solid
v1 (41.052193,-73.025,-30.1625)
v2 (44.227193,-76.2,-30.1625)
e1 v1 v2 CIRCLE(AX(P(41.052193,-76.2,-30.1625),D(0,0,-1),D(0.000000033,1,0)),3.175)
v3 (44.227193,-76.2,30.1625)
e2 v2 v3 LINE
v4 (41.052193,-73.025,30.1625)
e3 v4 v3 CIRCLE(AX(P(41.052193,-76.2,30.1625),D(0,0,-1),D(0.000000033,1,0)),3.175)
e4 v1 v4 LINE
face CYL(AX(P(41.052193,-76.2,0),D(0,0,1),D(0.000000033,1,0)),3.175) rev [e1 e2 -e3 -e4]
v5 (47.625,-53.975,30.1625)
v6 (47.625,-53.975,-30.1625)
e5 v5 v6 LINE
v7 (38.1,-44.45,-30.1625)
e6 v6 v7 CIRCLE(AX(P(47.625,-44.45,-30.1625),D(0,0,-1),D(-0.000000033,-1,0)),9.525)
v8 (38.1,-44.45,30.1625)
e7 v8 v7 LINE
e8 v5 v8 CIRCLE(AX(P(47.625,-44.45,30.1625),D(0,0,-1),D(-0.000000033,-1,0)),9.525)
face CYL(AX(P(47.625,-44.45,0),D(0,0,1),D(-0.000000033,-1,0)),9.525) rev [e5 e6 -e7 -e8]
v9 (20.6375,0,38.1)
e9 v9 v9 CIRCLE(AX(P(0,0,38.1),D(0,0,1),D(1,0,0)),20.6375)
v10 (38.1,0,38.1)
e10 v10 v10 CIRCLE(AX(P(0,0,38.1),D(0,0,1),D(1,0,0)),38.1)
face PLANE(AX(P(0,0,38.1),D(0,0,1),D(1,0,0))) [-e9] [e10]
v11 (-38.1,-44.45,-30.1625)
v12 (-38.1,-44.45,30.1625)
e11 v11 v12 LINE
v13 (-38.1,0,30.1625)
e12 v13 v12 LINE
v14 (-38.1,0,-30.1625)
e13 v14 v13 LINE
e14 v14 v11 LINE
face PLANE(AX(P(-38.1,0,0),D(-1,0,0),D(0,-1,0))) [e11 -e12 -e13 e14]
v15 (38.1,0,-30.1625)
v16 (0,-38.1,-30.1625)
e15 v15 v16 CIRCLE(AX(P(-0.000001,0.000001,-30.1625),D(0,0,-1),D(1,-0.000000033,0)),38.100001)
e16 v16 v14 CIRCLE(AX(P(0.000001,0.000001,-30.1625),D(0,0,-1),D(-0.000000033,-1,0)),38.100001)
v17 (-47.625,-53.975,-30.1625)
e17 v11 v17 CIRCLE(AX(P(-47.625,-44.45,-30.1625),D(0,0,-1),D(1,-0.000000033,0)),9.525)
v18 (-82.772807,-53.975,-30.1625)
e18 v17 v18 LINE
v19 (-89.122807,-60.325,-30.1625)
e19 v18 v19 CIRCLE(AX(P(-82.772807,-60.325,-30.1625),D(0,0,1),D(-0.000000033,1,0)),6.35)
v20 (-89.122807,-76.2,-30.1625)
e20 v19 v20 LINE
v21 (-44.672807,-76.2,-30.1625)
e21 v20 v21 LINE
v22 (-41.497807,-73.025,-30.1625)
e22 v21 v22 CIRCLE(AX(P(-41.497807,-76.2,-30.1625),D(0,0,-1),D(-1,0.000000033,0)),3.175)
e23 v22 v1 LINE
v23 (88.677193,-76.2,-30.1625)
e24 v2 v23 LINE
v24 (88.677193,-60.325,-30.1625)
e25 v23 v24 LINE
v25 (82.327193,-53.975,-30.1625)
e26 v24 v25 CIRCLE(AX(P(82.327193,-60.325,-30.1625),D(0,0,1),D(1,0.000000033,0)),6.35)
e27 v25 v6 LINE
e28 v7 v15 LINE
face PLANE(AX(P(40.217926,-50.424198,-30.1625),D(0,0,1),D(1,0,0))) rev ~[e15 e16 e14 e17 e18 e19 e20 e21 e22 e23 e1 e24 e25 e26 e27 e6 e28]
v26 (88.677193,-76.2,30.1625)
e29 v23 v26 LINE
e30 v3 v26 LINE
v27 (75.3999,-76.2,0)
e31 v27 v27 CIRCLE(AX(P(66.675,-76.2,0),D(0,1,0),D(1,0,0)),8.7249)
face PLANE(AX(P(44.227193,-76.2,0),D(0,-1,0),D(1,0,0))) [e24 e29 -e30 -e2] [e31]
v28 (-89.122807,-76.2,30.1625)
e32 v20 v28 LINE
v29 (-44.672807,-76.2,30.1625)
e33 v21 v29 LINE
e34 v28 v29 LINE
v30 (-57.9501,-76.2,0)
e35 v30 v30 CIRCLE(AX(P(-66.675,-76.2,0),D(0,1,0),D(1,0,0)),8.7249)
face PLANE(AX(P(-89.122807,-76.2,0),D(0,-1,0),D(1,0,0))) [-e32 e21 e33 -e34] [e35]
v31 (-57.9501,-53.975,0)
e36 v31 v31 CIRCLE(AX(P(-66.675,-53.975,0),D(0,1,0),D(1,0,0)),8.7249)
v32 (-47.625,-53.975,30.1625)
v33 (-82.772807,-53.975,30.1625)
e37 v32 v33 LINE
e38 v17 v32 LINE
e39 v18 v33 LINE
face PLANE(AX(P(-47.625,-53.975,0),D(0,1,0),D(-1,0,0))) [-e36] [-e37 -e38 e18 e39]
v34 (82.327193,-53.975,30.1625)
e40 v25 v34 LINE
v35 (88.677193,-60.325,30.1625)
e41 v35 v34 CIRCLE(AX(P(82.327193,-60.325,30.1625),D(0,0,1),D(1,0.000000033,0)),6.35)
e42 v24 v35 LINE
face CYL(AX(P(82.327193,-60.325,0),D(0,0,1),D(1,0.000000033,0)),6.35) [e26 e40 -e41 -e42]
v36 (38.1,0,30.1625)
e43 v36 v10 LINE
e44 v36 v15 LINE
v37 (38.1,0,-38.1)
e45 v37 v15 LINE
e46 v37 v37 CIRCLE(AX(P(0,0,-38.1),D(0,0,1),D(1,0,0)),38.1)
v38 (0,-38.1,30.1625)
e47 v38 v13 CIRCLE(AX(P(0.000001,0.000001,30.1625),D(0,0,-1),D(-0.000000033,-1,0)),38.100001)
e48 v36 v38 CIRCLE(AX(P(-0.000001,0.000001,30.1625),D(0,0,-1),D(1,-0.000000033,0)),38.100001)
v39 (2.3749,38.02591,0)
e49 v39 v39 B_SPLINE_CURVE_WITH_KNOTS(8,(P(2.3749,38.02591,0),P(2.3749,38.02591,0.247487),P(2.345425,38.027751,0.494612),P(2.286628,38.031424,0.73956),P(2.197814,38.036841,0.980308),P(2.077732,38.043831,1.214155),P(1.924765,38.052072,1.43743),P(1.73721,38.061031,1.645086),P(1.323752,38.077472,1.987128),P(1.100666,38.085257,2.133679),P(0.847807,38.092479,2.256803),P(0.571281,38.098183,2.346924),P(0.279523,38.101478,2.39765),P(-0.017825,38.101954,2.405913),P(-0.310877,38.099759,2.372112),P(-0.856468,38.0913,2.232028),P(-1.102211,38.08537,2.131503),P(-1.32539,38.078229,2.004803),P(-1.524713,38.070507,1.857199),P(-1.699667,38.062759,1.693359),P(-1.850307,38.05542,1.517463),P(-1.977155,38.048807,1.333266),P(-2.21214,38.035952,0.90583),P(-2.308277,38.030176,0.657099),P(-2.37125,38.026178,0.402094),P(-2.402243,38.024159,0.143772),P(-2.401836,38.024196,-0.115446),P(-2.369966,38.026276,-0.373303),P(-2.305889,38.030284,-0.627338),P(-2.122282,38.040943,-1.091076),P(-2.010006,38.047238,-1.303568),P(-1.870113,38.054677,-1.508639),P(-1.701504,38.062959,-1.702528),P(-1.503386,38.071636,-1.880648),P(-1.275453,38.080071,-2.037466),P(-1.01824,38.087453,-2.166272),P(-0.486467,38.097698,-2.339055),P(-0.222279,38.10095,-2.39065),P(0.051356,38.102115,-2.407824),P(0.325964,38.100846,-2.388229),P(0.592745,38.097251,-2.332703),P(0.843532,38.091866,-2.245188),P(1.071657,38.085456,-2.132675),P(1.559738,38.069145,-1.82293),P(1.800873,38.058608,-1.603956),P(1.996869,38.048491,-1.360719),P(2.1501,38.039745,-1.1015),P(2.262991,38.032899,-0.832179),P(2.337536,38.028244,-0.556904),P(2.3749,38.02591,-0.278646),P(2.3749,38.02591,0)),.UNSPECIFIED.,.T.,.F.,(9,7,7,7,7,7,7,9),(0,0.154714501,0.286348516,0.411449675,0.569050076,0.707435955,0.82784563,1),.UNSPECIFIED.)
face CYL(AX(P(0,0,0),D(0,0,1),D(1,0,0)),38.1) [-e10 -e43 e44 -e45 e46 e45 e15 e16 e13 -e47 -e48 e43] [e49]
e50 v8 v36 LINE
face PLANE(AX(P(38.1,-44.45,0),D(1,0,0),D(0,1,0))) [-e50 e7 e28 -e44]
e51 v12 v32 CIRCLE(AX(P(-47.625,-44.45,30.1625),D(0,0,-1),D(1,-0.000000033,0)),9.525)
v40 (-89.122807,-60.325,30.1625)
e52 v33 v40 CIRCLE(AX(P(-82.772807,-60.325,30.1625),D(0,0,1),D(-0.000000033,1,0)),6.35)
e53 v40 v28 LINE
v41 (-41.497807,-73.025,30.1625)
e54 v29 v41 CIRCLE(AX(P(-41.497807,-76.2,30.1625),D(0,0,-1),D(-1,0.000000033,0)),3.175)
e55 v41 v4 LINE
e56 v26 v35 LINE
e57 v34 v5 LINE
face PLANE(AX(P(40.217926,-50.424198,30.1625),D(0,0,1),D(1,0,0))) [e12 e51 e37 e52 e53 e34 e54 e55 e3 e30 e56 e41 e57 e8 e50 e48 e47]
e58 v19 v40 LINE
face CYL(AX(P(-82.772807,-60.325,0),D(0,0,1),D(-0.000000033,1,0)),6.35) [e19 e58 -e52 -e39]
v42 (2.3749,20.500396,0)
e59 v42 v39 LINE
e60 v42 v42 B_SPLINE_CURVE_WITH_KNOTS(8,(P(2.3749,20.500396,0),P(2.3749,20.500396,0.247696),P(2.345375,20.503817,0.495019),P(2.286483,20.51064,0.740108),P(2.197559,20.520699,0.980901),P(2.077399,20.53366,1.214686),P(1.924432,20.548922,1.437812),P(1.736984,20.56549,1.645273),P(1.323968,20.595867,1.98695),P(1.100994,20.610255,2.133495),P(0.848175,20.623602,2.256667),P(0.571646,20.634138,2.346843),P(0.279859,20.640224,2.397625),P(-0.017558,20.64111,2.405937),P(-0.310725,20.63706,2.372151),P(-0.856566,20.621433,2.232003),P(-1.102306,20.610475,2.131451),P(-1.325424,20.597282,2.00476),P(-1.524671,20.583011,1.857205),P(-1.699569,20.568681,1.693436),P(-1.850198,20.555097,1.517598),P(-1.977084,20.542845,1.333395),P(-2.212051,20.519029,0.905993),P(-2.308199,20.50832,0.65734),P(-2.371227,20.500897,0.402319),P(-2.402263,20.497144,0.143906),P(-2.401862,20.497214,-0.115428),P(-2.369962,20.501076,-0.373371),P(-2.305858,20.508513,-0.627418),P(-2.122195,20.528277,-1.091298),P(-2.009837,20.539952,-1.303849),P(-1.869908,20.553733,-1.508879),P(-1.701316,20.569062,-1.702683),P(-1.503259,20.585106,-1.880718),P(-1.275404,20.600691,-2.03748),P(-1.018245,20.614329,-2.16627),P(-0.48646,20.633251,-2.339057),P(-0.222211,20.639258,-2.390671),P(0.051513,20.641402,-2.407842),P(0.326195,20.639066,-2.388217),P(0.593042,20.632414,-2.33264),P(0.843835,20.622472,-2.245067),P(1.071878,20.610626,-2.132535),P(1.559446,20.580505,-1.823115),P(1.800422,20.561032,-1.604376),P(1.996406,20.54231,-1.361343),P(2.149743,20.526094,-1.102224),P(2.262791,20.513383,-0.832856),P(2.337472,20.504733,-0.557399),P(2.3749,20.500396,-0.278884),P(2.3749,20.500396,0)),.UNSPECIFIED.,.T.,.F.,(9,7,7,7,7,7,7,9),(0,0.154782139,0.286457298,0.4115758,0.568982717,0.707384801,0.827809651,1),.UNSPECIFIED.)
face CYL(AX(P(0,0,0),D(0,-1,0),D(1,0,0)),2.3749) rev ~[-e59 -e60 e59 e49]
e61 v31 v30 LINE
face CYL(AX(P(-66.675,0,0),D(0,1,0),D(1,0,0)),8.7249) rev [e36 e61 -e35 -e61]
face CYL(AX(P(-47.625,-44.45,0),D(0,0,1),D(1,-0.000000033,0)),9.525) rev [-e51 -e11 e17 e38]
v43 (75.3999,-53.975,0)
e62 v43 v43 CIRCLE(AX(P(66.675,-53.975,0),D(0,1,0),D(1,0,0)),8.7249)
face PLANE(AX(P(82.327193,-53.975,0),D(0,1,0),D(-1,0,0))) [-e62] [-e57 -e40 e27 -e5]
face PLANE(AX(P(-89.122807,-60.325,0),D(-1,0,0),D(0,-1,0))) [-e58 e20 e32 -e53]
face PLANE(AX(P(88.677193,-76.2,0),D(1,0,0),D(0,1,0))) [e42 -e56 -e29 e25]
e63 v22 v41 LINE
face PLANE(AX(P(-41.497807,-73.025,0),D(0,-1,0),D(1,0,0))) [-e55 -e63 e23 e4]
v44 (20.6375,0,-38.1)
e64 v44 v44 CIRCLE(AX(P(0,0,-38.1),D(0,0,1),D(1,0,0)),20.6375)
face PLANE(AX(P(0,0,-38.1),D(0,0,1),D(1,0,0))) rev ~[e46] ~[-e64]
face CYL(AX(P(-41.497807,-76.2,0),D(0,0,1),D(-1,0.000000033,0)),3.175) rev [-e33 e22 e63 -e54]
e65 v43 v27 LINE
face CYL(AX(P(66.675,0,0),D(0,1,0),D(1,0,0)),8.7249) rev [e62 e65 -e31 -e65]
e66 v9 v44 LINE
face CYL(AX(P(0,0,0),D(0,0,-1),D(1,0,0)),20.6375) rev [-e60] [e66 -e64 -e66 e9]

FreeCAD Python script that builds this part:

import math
import FreeCAD as App
import Part
import Sketcher
Q = App.Units.Quantity

doc = App.newDocument("Part")
body = doc.addObject("PartDesign::Body", "Body")

sketch1 = body.newObject("Sketcher::SketchObject", "Sketch")
sketch1.AttachmentSupport = (doc.getObject("XY_Plane"), [""])
sketch1.MapMode = "FlatFace"
sketch1.addGeometry(Part.Circle(App.Vector(0, 0, 0), App.Vector(0, 0, 1), 38), False)
sketch1.addGeometry(Part.Circle(App.Vector(0, 0, 0), App.Vector(0, 0, 1), 21), False)
sketch1.addConstraint(Sketcher.Constraint("Coincident", 0, 3, -1, 1))
sketch1.addConstraint(Sketcher.Constraint("Coincident", 1, 3, -1, 1))
sketch1.addConstraint(Sketcher.Constraint("Diameter", 0, Q("3 in")))
sketch1.addConstraint(Sketcher.Constraint("Diameter", 1, Q("1.625 in")))
pad1 = body.newObject("PartDesign::Pad", "Pad")
pad1.Profile = sketch1
pad1.Length = Q("3 in")
pad1.Midplane = True

sketch2 = body.newObject("Sketcher::SketchObject", "Sketch001")
sketch2.AttachmentSupport = (doc.getObject("XY_Plane"), [""])
sketch2.MapMode = "FlatFace"
sketch2.addGeometry(Part.ArcOfCircle(Part.Circle(App.Vector(0, 0, 0), App.Vector(0, 0, 1), 38.1), math.radians(-90), math.radians(0)), False)
sketch2.addGeometry(Part.ArcOfCircle(Part.Circle(App.Vector(0, 0, 0), App.Vector(0, 0, 1), 38.1), math.radians(-180), math.radians(-90)), False)
sketch2.addGeometry(Part.LineSegment(App.Vector(-38.1, 0, 0), App.Vector(-38.1, -44.5, 0)), False)
sketch2.addGeometry(Part.ArcOfCircle(Part.Circle(App.Vector(-47.6, -44.4, 0), App.Vector(0, 0, 1), 9.5), math.radians(-90), math.radians(0)), False)
sketch2.addGeometry(Part.LineSegment(App.Vector(-47.6, -54, 0), App.Vector(-82.8, -54, 0)), False)
sketch2.addGeometry(Part.ArcOfCircle(Part.Circle(App.Vector(-82.8, -60.3, 0), App.Vector(0, 0, 1), 6.4), math.radians(90), math.radians(180)), False)
sketch2.addGeometry(Part.LineSegment(App.Vector(-89.1, -60.3, 0), App.Vector(-89.1, -76.2, 0)), False)
sketch2.addGeometry(Part.LineSegment(App.Vector(-89.1, -76.2, 0), App.Vector(-44.7, -76.2, 0)), False)
sketch2.addGeometry(Part.ArcOfCircle(Part.Circle(App.Vector(-41.5, -76.2, 0), App.Vector(0, 0, 1), 3.2), math.radians(90), math.radians(180)), False)
sketch2.addGeometry(Part.LineSegment(App.Vector(-41.5, -73, 0), App.Vector(41.1, -73, 0)), False)
sketch2.addGeometry(Part.ArcOfCircle(Part.Circle(App.Vector(41.1, -76.2, 0), App.Vector(0, 0, 1), 3.2), math.radians(0), math.radians(90)), False)
sketch2.addGeometry(Part.LineSegment(App.Vector(44.2, -76.2, 0), App.Vector(88.7, -76.2, 0)), False)
sketch2.addGeometry(Part.LineSegment(App.Vector(88.7, -76.2, 0), App.Vector(88.7, -60.3, 0)), False)
sketch2.addGeometry(Part.ArcOfCircle(Part.Circle(App.Vector(82.3, -60.3, 0), App.Vector(0, 0, 1), 6.4), math.radians(0), math.radians(90)), False)
sketch2.addGeometry(Part.LineSegment(App.Vector(82.3, -54, 0), App.Vector(47.6, -54, 0)), False)
sketch2.addGeometry(Part.ArcOfCircle(Part.Circle(App.Vector(47.6, -44.4, 0), App.Vector(0, 0, 1), 9.5), math.radians(-180), math.radians(-90)), False)
sketch2.addGeometry(Part.LineSegment(App.Vector(38.1, -44.5, 0), App.Vector(38.1, 0, 0)), False)
sketch2.addConstraint(Sketcher.Constraint("Tangent", 0, 1, 1, 2))
sketch2.addConstraint(Sketcher.Constraint("Tangent", 1, 1, 2, 1))
sketch2.addConstraint(Sketcher.Constraint("Tangent", 2, 2, 3, 2))
sketch2.addConstraint(Sketcher.Constraint("Tangent", 3, 1, 4, 1))
sketch2.addConstraint(Sketcher.Constraint("Tangent", 4, 2, 5, 1))
sketch2.addConstraint(Sketcher.Constraint("Tangent", 5, 2, 6, 1))
sketch2.addConstraint(Sketcher.Constraint("Coincident", 6, 2, 7, 1))
sketch2.addConstraint(Sketcher.Constraint("Coincident", 7, 2, 8, 2))
sketch2.addConstraint(Sketcher.Constraint("Tangent", 8, 1, 9, 1))
sketch2.addConstraint(Sketcher.Constraint("Tangent", 9, 2, 10, 2))
sketch2.addConstraint(Sketcher.Constraint("Coincident", 10, 1, 11, 1))
sketch2.addConstraint(Sketcher.Constraint("Coincident", 11, 2, 12, 1))
sketch2.addConstraint(Sketcher.Constraint("Tangent", 12, 2, 13, 1))
sketch2.addConstraint(Sketcher.Constraint("Tangent", 13, 2, 14, 1))
sketch2.addConstraint(Sketcher.Constraint("Tangent", 14, 2, 15, 2))
sketch2.addConstraint(Sketcher.Constraint("Tangent", 15, 1, 16, 1))
sketch2.addConstraint(Sketcher.Constraint("Tangent", 16, 2, 0, 2))
sketch2.addConstraint(Sketcher.Constraint("Vertical", 2))
sketch2.addConstraint(Sketcher.Constraint("Horizontal", 4))
sketch2.addConstraint(Sketcher.Constraint("Vertical", 6))
sketch2.addConstraint(Sketcher.Constraint("Horizontal", 7))
sketch2.addConstraint(Sketcher.Constraint("Horizontal", 9))
sketch2.addConstraint(Sketcher.Constraint("Horizontal", 11))
sketch2.addConstraint(Sketcher.Constraint("Vertical", 12))
sketch2.addConstraint(Sketcher.Constraint("Horizontal", 14))
sketch2.addConstraint(Sketcher.Constraint("Vertical", 16))
sketch2.addConstraint(Sketcher.Constraint("Coincident", 0, 3, -1, 1))
sketch2.addConstraint(Sketcher.Constraint("Equal", 0, 1))
sketch2.addConstraint(Sketcher.Constraint("Equal", 8, 10))
sketch2.addConstraint(Sketcher.Constraint("Equal", 5, 13))
sketch2.addConstraint(Sketcher.Constraint("Equal", 3, 15))
sketch2.addConstraint(Sketcher.Constraint("PointOnObject", 0, 1, -2))
sketch2.addConstraint(Sketcher.Constraint("Horizontal", 5, 3, 13, 3))
sketch2.addConstraint(Sketcher.Constraint("Horizontal", 10, 3, 6, 2))
sketch2.addConstraint(Sketcher.Constraint("Horizontal", 7, 2, 10, 1))
sketch2.addConstraint(Sketcher.Constraint("Equal", 7, 11))
sketch2.addConstraint(Sketcher.Constraint("Equal", 11, 2))
sketch2.addConstraint(Sketcher.Constraint("Radius", 0, Q("1.5 in")))
sketch2.addConstraint(Sketcher.Constraint("Radius", 5, Q("0.25 in")))
sketch2.addConstraint(Sketcher.Constraint("DistanceY", 8, 3, -1, 1, Q("3 in")))
sketch2.addConstraint(Sketcher.Constraint("Radius", 3, Q("0.375 in")))
sketch2.addConstraint(Sketcher.Constraint("Radius", 8, Q("0.125 in")))
sketch2.addConstraint(Sketcher.Constraint("DistanceX", 7, 1, 7, 2, Q("1.75 in")))
sketch2.addConstraint(Sketcher.Constraint("DistanceX", 9, 1, 9, 2, Q("3.25 in")))
sketch2.addConstraint(Sketcher.Constraint("DistanceX", 4, 2, 4, 1, 35.147807))
pad2 = body.newObject("PartDesign::Pad", "Pad001")
pad2.Profile = sketch2
pad2.Length = Q("2.375 in")
pad2.Midplane = True

sketch3 = body.newObject("Sketcher::SketchObject", "Sketch002")
sketch3.AttachmentSupport = (doc.getObject("XZ_Plane"), [""])
sketch3.MapMode = "FlatFace"
sketch3.addGeometry(Part.Circle(App.Vector(-67, 0, 0), App.Vector(0, 0, 1), 9), False)
sketch3.addGeometry(Part.Circle(App.Vector(67, 0, 0), App.Vector(0, 0, 1), 9), False)
sketch3.addConstraint(Sketcher.Constraint("Equal", 0, 1))
sketch3.addConstraint(Sketcher.Constraint("Symmetric", 0, 3, 1, 3, -1, 1))
sketch3.addConstraint(Sketcher.Constraint("PointOnObject", 0, 3, -1))
sketch3.addConstraint(Sketcher.Constraint("Diameter", 0, Q("0.687 in")))
sketch3.addConstraint(Sketcher.Constraint("DistanceX", 0, 3, 1, 3, Q("5.25 in")))
pocket1 = body.newObject("PartDesign::Pocket", "Pocket")
pocket1.Profile = sketch3
pocket1.Length = Q("10 in")
pocket1.Reversed = True

sketch4 = body.newObject("Sketcher::SketchObject", "Sketch003")
sketch4.AttachmentSupport = (doc.getObject("XZ_Plane"), [""])
sketch4.MapMode = "FlatFace"
sketch4.addGeometry(Part.Circle(App.Vector(0, 0, 0), App.Vector(0, 0, 1), 2.4), False)
sketch4.addConstraint(Sketcher.Constraint("Coincident", 0, 3, -1, 1))
sketch4.addConstraint(Sketcher.Constraint("Diameter", 0, Q("0.187 in")))
pocket2 = body.newObject("PartDesign::Pocket", "Pocket001")
pocket2.Profile = sketch4
pocket2.Length = Q("2 in")

doc.recompute()
